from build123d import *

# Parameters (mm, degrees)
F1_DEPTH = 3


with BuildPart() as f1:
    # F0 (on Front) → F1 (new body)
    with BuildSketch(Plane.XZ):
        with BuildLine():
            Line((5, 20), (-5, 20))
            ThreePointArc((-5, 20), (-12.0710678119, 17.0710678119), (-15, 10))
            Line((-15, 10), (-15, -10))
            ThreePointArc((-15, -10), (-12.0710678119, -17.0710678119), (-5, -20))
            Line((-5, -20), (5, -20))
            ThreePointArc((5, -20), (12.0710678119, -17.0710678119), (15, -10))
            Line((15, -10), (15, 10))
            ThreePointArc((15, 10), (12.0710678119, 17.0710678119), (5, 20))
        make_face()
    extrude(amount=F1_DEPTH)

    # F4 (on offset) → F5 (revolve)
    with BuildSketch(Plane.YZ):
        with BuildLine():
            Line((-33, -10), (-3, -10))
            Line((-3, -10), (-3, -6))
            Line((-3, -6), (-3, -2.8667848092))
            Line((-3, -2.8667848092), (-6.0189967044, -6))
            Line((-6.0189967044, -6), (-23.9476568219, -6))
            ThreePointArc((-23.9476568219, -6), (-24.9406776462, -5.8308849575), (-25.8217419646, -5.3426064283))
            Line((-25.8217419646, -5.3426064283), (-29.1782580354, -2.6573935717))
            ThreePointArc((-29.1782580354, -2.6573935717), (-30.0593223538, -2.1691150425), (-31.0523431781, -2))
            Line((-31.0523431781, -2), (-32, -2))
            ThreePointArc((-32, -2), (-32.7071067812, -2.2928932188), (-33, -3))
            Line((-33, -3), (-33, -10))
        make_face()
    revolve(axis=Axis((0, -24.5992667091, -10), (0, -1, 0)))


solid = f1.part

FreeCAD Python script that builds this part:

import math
import FreeCAD as App
import Part
import Sketcher

V = App.Vector
Q = App.Units.Quantity

doc = App.newDocument("Part")
body = doc.addObject("PartDesign::Body", "Body")

sketch1 = body.newObject("Sketcher::SketchObject", "Sketch")
sketch1.AttachmentSupport = (doc.getObject("XZ_Plane"), [""])
sketch1.MapMode = "FlatFace"
sketch1.addGeometry(Part.LineSegment(V(5, 20, 0), V(-5, 20, 0)), False)
sketch1.addGeometry(Part.ArcOfCircle(Part.Circle(V(-5, 10, 0), V(0, 0, 1), 10), math.radians(90), math.radians(180)), False)
sketch1.addGeometry(Part.LineSegment(V(-15, 10, 0), V(-15, -10, 0)), False)
sketch1.addGeometry(Part.ArcOfCircle(Part.Circle(V(-5, -10, 0), V(0, 0, 1), 10), math.radians(180), math.radians(270)), False)
sketch1.addGeometry(Part.LineSegment(V(-5, -20, 0), V(5, -20, 0)), False)
sketch1.addGeometry(Part.ArcOfCircle(Part.Circle(V(5, -10, 0), V(0, 0, 1), 10), math.radians(-90), math.radians(0)), False)
sketch1.addGeometry(Part.LineSegment(V(15, -10, 0), V(15, 10, 0)), False)
sketch1.addGeometry(Part.ArcOfCircle(Part.Circle(V(5, 10, 0), V(0, 0, 1), 10), math.radians(0), math.radians(90)), False)
sketch1.addConstraint(Sketcher.Constraint("Tangent", 0, 2, 1, 1))
sketch1.addConstraint(Sketcher.Constraint("Tangent", 1, 2, 2, 1))
sketch1.addConstraint(Sketcher.Constraint("Tangent", 2, 2, 3, 1))
sketch1.addConstraint(Sketcher.Constraint("Tangent", 3, 2, 4, 1))
sketch1.addConstraint(Sketcher.Constraint("Tangent", 4, 2, 5, 1))
sketch1.addConstraint(Sketcher.Constraint("Tangent", 5, 2, 6, 1))
sketch1.addConstraint(Sketcher.Constraint("Tangent", 6, 2, 7, 1))
sketch1.addConstraint(Sketcher.Constraint("Tangent", 7, 2, 0, 1))
sketch1.addConstraint(Sketcher.Constraint("Horizontal", 0))
sketch1.addConstraint(Sketcher.Constraint("Vertical", 2))
sketch1.addConstraint(Sketcher.Constraint("Horizontal", 4))
sketch1.addConstraint(Sketcher.Constraint("Vertical", 6))
sketch1.addConstraint(Sketcher.Constraint("Equal", 1, 3))
sketch1.addConstraint(Sketcher.Constraint("Equal", 3, 5))
sketch1.addConstraint(Sketcher.Constraint("Equal", 5, 7))
sketch1.addConstraint(Sketcher.Constraint("Symmetric", 1, 3, 5, 3, -1, 1))
sketch1.addConstraint(Sketcher.Constraint("Radius", 1, Q("10 mm")))
sketch1.addConstraint(Sketcher.Constraint("DistanceX", 0, 2, 0, 1, Q("10 mm")))
sketch1.addConstraint(Sketcher.Constraint("DistanceY", 2, 2, 2, 1, Q("20 mm")))
pad1 = body.newObject("PartDesign::Pad", "Pad")
pad1.Profile = sketch1
pad1.Length = 3

sketch2 = body.newObject("Sketcher::SketchObject", "Sketch001")
sketch2.AttachmentSupport = (doc.getObject("YZ_Plane"), [""])
sketch2.MapMode = "FlatFace"
sketch2.addGeometry(Part.LineSegment(V(-33, -10, 0), V(-3, -10, 0)), False)
sketch2.addGeometry(Part.LineSegment(V(-3, -10, 0), V(-3, -2.9, 0)), False)
sketch2.addGeometry(Part.LineSegment(V(-3, -2.9, 0), V(-6, -6, 0)), False)
sketch2.addGeometry(Part.LineSegment(V(-6, -6, 0), V(-23.9, -6, 0)), False)
sketch2.addGeometry(Part.ArcOfCircle(Part.Circle(V(-23.9, -3, 0), V(0, 0, 1), 3), math.radians(-129), math.radians(-90)), False)
sketch2.addGeometry(Part.LineSegment(V(-25.8, -5.3, 0), V(-29.2, -2.7, 0)), False)
sketch2.addGeometry(Part.ArcOfCircle(Part.Circle(V(-31.1, -5, 0), V(0, 0, 1), 3), math.radians(51), math.radians(90)), False)
sketch2.addGeometry(Part.LineSegment(V(-31.1, -2, 0), V(-32, -2, 0)), False)
sketch2.addGeometry(Part.ArcOfCircle(Part.Circle(V(-32, -3, 0), V(0, 0, 1), 1), math.radians(90), math.radians(180)), False)
sketch2.addGeometry(Part.LineSegment(V(-33, -3, 0), V(-33, -10, 0)), False)
sketch2.addGeometry(Part.LineSegment(V(-3, -10, 0), V(-33, -10, 0)), True)
sketch2.addConstraint(Sketcher.Constraint("Coincident", 0, 2, 1, 1))
sketch2.addConstraint(Sketcher.Constraint("Coincident", 1, 2, 2, 1))
sketch2.addConstraint(Sketcher.Constraint("Coincident", 2, 2, 3, 1))
sketch2.addConstraint(Sketcher.Constraint("Tangent", 3, 2, 4, 2))
sketch2.addConstraint(Sketcher.Constraint("Tangent", 4, 1, 5, 1))
sketch2.addConstraint(Sketcher.Constraint("Tangent", 5, 2, 6, 1))
sketch2.addConstraint(Sketcher.Constraint("Tangent", 6, 2, 7, 1))
sketch2.addConstraint(Sketcher.Constraint("Tangent", 7, 2, 8, 1))
sketch2.addConstraint(Sketcher.Constraint("Tangent", 8, 2, 9, 1))
sketch2.addConstraint(Sketcher.Constraint("Coincident", 9, 2, 0, 1))
sketch2.addConstraint(Sketcher.Constraint("Horizontal", 0))
sketch2.addConstraint(Sketcher.Constraint("Vertical", 1))
sketch2.addConstraint(Sketcher.Constraint("Horizontal", 3))
sketch2.addConstraint(Sketcher.Constraint("Horizontal", 7))
sketch2.addConstraint(Sketcher.Constraint("Vertical", 9))
sketch2.addConstraint(Sketcher.Constraint("Horizontal", 10))
sketch2.addConstraint(Sketcher.Constraint("Coincident", 10, 1, 0, 2))
sketch2.addConstraint(Sketcher.Constraint("Equal", 4, 6))
sketch2.addConstraint(Sketcher.Constraint("Horizontal", 4, 3, 8, 3))
sketch2.addConstraint(Sketcher.Constraint("Vertical", 8, 2, 10, 2))
sketch2.addConstraint(Sketcher.Constraint("Radius", 4, Q("3 mm")))
sketch2.addConstraint(Sketcher.Constraint("Radius", 8, Q("1 mm")))
sketch2.addConstraint(Sketcher.Constraint("DistanceX", 0, 1, 0, 2, Q("30 mm")))
sketch2.addConstraint(Sketcher.Constraint("DistanceY", 9, 2, 9, 1, Q("7 mm")))
sketch2.addConstraint(Sketcher.Constraint("DistanceY", 4, 3, -1, 1, Q("3 mm")))
sketch2.addConstraint(Sketcher.Constraint("DistanceX", 8, 3, -1, 1, Q("32 mm")))
sketch2.addConstraint(Sketcher.Constraint("DistanceX", 3, 2, 3, 1, Q("17.92866 mm")))
sketch2.addConstraint(Sketcher.Constraint("DistanceX", 6, 3, 4, 1, Q("5.230601 mm")))
sketch2.addConstraint(Sketcher.Constraint("Distance", 2, Q("4.35102 mm")))
sketch2.addConstraint(Sketcher.Constraint("DistanceX", 7, 2, 7, 1, Q("0.947657 mm")))
revolution = body.newObject("PartDesign::Revolution", "Revolution")
revolution.Profile = sketch2
revolution.ReferenceAxis = (sketch2, ["Axis0"])
revolution.Angle = 360

doc.recompute()
